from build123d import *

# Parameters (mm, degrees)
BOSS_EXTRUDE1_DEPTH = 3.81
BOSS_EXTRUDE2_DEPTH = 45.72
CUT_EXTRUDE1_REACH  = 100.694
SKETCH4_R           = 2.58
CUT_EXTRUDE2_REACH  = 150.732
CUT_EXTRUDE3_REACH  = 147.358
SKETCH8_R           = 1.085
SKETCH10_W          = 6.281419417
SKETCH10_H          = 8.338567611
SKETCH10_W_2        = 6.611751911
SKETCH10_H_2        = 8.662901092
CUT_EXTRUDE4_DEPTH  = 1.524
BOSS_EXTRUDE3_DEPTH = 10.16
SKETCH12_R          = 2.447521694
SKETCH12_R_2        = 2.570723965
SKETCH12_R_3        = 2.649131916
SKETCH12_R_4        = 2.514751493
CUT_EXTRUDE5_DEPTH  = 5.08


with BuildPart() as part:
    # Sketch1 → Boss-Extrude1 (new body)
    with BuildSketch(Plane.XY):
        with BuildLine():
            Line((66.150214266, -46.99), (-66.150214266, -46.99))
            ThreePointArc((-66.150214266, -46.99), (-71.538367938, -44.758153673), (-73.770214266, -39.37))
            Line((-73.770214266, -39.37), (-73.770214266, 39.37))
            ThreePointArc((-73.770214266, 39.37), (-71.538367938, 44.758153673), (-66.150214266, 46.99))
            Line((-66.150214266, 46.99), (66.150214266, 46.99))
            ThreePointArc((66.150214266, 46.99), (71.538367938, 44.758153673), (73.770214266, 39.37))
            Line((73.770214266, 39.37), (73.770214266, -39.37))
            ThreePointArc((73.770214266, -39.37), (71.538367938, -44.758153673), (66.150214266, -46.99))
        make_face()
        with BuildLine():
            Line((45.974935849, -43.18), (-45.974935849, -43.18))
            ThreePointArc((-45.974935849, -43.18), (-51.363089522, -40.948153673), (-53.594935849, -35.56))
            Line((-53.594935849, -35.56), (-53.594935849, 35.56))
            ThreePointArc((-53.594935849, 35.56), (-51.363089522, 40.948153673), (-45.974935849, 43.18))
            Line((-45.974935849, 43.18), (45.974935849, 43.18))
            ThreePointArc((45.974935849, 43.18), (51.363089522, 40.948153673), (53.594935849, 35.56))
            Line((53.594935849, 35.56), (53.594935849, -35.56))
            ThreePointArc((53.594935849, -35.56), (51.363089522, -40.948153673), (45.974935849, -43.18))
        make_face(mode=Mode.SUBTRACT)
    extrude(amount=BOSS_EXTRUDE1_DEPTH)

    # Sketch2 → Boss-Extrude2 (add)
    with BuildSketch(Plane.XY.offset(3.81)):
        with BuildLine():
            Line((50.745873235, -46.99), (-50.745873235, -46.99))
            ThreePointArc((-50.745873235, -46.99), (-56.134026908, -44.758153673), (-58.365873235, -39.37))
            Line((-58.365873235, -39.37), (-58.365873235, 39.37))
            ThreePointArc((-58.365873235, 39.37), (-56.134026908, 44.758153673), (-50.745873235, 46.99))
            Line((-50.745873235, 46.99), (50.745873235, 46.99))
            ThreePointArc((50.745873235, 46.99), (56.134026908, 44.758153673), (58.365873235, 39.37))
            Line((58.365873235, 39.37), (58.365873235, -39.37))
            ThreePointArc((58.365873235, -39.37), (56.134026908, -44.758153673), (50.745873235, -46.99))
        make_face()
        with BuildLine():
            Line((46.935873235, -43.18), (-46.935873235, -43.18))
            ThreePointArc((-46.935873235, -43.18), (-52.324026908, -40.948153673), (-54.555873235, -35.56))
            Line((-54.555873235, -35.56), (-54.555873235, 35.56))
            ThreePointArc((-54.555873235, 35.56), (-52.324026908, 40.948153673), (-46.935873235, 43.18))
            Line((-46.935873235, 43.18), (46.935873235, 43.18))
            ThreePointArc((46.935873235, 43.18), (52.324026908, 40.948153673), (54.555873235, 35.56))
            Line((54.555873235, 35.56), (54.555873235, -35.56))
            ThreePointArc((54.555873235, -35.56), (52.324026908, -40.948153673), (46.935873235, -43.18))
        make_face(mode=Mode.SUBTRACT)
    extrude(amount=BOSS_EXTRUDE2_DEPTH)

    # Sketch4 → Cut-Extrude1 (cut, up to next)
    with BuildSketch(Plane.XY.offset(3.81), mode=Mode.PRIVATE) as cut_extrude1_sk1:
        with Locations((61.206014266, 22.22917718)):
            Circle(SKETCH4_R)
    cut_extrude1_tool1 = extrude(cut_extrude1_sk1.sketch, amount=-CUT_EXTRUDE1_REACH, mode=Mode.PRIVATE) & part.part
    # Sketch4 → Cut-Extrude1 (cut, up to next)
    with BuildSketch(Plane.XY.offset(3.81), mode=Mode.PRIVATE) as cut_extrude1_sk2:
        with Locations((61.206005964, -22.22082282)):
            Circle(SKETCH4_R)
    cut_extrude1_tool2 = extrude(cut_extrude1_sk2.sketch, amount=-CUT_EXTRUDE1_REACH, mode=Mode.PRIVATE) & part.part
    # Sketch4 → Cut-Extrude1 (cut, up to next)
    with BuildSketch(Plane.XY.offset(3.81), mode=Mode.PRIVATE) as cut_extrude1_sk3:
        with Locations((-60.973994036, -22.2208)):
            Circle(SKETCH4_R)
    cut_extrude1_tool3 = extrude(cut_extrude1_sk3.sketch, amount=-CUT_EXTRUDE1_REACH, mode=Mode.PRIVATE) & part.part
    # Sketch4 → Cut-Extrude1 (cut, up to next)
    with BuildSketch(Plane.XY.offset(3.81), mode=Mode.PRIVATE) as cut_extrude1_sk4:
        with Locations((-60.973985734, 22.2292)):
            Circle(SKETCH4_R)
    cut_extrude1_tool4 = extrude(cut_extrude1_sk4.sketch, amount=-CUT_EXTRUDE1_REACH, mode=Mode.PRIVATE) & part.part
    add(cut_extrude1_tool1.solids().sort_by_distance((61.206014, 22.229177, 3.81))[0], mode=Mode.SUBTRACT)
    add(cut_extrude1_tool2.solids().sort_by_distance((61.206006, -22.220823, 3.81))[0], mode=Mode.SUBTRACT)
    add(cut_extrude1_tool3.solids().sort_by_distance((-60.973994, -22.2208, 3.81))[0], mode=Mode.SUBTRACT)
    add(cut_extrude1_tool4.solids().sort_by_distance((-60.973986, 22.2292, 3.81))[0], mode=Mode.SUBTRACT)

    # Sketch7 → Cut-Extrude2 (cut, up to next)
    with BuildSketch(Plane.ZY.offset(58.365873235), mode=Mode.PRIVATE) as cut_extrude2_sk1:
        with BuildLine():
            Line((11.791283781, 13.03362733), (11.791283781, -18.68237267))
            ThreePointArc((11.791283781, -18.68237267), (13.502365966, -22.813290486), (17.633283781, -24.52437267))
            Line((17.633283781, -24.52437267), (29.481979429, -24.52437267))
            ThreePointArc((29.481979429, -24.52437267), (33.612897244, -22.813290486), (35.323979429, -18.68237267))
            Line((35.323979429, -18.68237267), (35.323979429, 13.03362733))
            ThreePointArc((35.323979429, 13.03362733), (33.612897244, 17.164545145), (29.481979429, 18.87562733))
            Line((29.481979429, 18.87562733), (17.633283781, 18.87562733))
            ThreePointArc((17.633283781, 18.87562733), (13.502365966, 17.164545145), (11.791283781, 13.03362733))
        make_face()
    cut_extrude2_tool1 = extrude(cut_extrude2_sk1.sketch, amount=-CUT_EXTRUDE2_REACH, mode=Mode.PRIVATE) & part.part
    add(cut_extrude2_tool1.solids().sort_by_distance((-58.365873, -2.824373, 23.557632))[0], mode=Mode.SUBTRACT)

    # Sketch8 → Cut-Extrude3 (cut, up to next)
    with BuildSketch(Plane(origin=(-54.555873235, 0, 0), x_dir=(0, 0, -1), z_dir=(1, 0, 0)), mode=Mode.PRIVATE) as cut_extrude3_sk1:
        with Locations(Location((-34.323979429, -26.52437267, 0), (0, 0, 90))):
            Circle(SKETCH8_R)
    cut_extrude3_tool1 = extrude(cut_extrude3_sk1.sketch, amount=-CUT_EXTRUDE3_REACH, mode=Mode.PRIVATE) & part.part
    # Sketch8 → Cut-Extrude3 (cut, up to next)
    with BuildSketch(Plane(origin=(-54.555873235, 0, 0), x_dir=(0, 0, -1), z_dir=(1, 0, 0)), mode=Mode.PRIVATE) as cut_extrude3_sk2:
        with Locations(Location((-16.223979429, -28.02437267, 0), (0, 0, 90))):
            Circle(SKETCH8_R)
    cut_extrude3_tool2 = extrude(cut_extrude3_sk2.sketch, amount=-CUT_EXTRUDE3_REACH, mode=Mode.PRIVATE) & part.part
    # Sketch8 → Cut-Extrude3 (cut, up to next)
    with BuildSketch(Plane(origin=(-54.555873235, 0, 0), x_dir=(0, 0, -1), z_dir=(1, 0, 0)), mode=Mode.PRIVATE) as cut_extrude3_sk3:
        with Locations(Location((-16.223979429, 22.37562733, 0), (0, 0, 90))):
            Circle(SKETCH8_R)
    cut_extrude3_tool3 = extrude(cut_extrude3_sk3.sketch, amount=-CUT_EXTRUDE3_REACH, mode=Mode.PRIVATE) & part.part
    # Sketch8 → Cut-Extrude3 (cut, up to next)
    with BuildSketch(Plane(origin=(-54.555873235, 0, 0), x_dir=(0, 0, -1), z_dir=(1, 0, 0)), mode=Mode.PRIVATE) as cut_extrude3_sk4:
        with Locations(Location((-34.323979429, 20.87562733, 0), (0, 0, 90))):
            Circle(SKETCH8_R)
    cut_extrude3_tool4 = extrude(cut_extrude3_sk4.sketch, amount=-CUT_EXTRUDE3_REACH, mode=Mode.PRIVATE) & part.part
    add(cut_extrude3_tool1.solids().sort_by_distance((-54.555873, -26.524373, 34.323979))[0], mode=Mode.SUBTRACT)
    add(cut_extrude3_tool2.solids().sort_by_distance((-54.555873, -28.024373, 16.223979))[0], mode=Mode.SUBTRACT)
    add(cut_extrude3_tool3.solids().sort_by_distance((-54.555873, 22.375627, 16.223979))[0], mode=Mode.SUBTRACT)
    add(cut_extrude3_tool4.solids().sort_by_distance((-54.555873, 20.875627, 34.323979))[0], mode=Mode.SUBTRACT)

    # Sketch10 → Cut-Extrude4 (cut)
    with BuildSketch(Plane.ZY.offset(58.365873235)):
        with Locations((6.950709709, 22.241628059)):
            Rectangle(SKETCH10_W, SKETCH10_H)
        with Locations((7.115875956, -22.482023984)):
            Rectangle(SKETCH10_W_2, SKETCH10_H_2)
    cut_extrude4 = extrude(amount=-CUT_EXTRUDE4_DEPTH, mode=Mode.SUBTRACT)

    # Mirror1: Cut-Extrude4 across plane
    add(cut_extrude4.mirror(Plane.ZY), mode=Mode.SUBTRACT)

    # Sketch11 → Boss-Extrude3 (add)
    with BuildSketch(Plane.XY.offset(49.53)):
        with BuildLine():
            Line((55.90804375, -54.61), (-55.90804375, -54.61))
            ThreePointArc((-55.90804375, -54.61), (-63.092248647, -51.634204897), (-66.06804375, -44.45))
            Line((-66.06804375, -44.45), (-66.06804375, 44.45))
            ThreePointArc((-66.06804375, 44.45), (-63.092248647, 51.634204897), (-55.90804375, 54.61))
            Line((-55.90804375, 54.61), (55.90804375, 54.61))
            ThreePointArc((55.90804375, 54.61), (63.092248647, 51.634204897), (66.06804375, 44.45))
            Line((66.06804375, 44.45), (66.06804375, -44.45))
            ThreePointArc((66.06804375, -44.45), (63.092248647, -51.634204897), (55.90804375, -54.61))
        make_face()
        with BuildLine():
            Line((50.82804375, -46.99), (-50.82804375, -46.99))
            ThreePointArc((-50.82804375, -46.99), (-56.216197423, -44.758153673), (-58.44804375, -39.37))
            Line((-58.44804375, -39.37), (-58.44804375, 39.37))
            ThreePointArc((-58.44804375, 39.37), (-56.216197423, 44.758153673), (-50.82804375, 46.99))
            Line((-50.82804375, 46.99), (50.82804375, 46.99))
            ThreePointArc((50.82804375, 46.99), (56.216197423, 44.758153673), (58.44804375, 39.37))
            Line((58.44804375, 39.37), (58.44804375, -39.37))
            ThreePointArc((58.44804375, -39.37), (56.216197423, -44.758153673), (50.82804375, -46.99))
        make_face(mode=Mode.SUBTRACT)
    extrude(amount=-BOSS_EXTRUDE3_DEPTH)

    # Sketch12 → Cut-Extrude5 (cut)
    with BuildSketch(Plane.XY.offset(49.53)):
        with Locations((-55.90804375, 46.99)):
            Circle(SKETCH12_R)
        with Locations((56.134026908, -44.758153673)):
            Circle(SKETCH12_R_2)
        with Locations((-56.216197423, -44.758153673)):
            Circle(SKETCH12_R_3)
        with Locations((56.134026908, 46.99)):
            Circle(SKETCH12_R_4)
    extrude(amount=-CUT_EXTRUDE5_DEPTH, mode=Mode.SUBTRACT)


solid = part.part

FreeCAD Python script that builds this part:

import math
import FreeCAD as App
import Part
import Sketcher
from FreeCAD import Vector
Q = App.Units.Quantity


def add_polygon(sketch, points):
    """Adds a closed chain of lines whose ends are joined by coincident constraints."""
    first, n = sketch.GeometryCount, len(points)
    for a, b in zip(points, points[1:] + points[:1]):
        sketch.addGeometry(Part.LineSegment(App.Vector(*a, 0), App.Vector(*b, 0)), False)
    for i in range(n):
        sketch.addConstraint(Sketcher.Constraint("Coincident", first + i, 2, first + (i + 1) % n, 1))

doc = App.newDocument("Part")
params = doc.addObject("Spreadsheet::Sheet", "Params")
for row, (alias, value) in enumerate([
    ("sketch1_radius", "0.3 in"),
    ("sketch1_height", "3.1 in"),
    ("sketch1_height2", "2.8 in"),
    ("pad1_length", "0.15 in"),
    ("sketch2_radius", "0.3 in"),
    ("sketch2_height", "3.1 in"),
    ("sketch2_height2", "2.8 in"),
    ("pad2_length", "1.8 in"),
    ("sketch7_radius", "0.23 in"),
    ("pocket10_length", "0.06 in"),
    ("sketch13_radius", "0.4 in"),
    ("sketch13_radius2", "0.3 in"),
    ("sketch13_height", "3.5 in"),
    ("sketch13_height2", "3.1 in"),
    ("pad3_length", "0.4 in"),
    ("pocket11_length", "0.2 in"),
], start=1):
    params.set(f"A{row}", alias)
    params.set(f"B{row}", "=" + value)
    params.setAlias(f"B{row}", alias)

body = doc.addObject("PartDesign::Body", "Body")

# Sketch on XY plane
sketch1 = body.newObject("Sketcher::SketchObject", "Sketch")
sketch1.AttachmentSupport = (doc.getObject("XY_Plane"), [""])
sketch1.MapMode = "FlatFace"
sketch1.addGeometry([
    Part.LineSegment(Vector(-66, -47, 0), Vector(66, -47, 0)),  # 0
    Part.ArcOfCircle(Part.Circle(Vector(66, -39, 0), Vector(0, 0, 1), 8), math.radians(-90), math.radians(0)),  # 1
    Part.LineSegment(Vector(74, -39, 0), Vector(74, 39, 0)),  # 2
    Part.ArcOfCircle(Part.Circle(Vector(66, 39, 0), Vector(0, 0, 1), 8), math.radians(0), math.radians(90)),  # 3
    Part.LineSegment(Vector(66, 47, 0), Vector(-66, 47, 0)),  # 4
    Part.ArcOfCircle(Part.Circle(Vector(-66, 39, 0), Vector(0, 0, 1), 8), math.radians(90), math.radians(180)),  # 5
    Part.LineSegment(Vector(-74, 39, 0), Vector(-74, -39, 0)),  # 6
    Part.ArcOfCircle(Part.Circle(Vector(-66, -39, 0), Vector(0, 0, 1), 8), math.radians(180), math.radians(270)),  # 7
    Part.LineSegment(Vector(46, -43, 0), Vector(-46, -43, 0)),  # 8
    Part.ArcOfCircle(Part.Circle(Vector(-46, -36, 0), Vector(0, 0, 1), 8), math.radians(180), math.radians(270)),  # 9
    Part.LineSegment(Vector(-54, -36, 0), Vector(-54, 36, 0)),  # 10
    Part.ArcOfCircle(Part.Circle(Vector(-46, 36, 0), Vector(0, 0, 1), 8), math.radians(90), math.radians(180)),  # 11
    Part.LineSegment(Vector(-46, 43, 0), Vector(46, 43, 0)),  # 12
    Part.ArcOfCircle(Part.Circle(Vector(46, 36, 0), Vector(0, 0, 1), 8), math.radians(0), math.radians(90)),  # 13
    Part.LineSegment(Vector(54, 36, 0), Vector(54, -36, 0)),  # 14
    Part.ArcOfCircle(Part.Circle(Vector(46, -36, 0), Vector(0, 0, 1), 8), math.radians(-90), math.radians(0)),  # 15
], False)
sketch1.addConstraint([
    Sketcher.Constraint("Tangent", 0, 2, 1, 1),
    Sketcher.Constraint("Tangent", 1, 2, 2, 1),
    Sketcher.Constraint("Tangent", 2, 2, 3, 1),
    Sketcher.Constraint("Tangent", 3, 2, 4, 1),
    Sketcher.Constraint("Tangent", 4, 2, 5, 1),
    Sketcher.Constraint("Tangent", 5, 2, 6, 1),
    Sketcher.Constraint("Tangent", 6, 2, 7, 1),
    Sketcher.Constraint("Tangent", 7, 2, 0, 1),
    Sketcher.Constraint("Tangent", 8, 2, 9, 2),
    Sketcher.Constraint("Tangent", 9, 1, 10, 1),
    Sketcher.Constraint("Tangent", 10, 2, 11, 2),
    Sketcher.Constraint("Tangent", 11, 1, 12, 1),
    Sketcher.Constraint("Tangent", 12, 2, 13, 2),
    Sketcher.Constraint("Tangent", 13, 1, 14, 1),
    Sketcher.Constraint("Tangent", 14, 2, 15, 2),
    Sketcher.Constraint("Tangent", 15, 1, 8, 1),
    Sketcher.Constraint("Horizontal", 0),
    Sketcher.Constraint("Vertical", 2),
    Sketcher.Constraint("Horizontal", 4),
    Sketcher.Constraint("Vertical", 6),
    Sketcher.Constraint("Horizontal", 8),
    Sketcher.Constraint("Vertical", 10),
    Sketcher.Constraint("Horizontal", 12),
    Sketcher.Constraint("Vertical", 14),
    Sketcher.Constraint("Equal", 1, 3),
    Sketcher.Constraint("Equal", 3, 5),
    Sketcher.Constraint("Equal", 5, 7),
    Sketcher.Constraint("Equal", 7, 9),
    Sketcher.Constraint("Equal", 9, 11),
    Sketcher.Constraint("Equal", 11, 13),
    Sketcher.Constraint("Equal", 13, 15),
    Sketcher.Constraint("Symmetric", 1, 3, 5, 3, -1, 1),
    Sketcher.Constraint("Symmetric", 9, 3, 13, 3, -1, 1),
    Sketcher.Constraint("Radius", 1, Q("0.3 in")),
    Sketcher.Constraint("DistanceY", 2, 1, 2, 2, Q("3.1 in")),
    Sketcher.Constraint("DistanceY", 10, 1, 10, 2, Q("2.8 in")),
    Sketcher.Constraint("DistanceX", 0, 1, 0, 2, Q("132.300429 mm")),
    Sketcher.Constraint("DistanceX", 8, 2, 8, 1, Q("91.949872 mm")),
])
sketch1.setExpression("Constraints[33]", "Params.sketch1_radius")
sketch1.setExpression("Constraints[34]", "Params.sketch1_height")
sketch1.setExpression("Constraints[35]", "Params.sketch1_height2")
pad1 = body.newObject("PartDesign::Pad", "Pad")
pad1.Profile = sketch1
pad1.setExpression("Length", "Params.pad1_length")

# Sketch on XY plane
sketch2 = body.newObject("Sketcher::SketchObject", "Sketch001")
sketch2.AttachmentSupport = (doc.getObject("XY_Plane"), [""])
sketch2.MapMode = "FlatFace"
sketch2.AttachmentOffset = App.Placement(Vector(0, 0, 0.15 * 25.4), App.Rotation())
sketch2.addGeometry([
    Part.LineSegment(Vector(-51, -47, 0), Vector(51, -47, 0)),  # 0
    Part.ArcOfCircle(Part.Circle(Vector(51, -39, 0), Vector(0, 0, 1), 8), math.radians(-90), math.radians(0)),  # 1
    Part.LineSegment(Vector(58, -39, 0), Vector(58, 39, 0)),  # 2
    Part.ArcOfCircle(Part.Circle(Vector(51, 39, 0), Vector(0, 0, 1), 8), math.radians(0), math.radians(90)),  # 3
    Part.LineSegment(Vector(51, 47, 0), Vector(-51, 47, 0)),  # 4
    Part.ArcOfCircle(Part.Circle(Vector(-51, 39, 0), Vector(0, 0, 1), 8), math.radians(90), math.radians(180)),  # 5
    Part.LineSegment(Vector(-58, 39, 0), Vector(-58, -39, 0)),  # 6
    Part.ArcOfCircle(Part.Circle(Vector(-51, -39, 0), Vector(0, 0, 1), 8), math.radians(180), math.radians(270)),  # 7
    Part.LineSegment(Vector(47, -43, 0), Vector(-47, -43, 0)),  # 8
    Part.ArcOfCircle(Part.Circle(Vector(-47, -36, 0), Vector(0, 0, 1), 8), math.radians(180), math.radians(270)),  # 9
    Part.LineSegment(Vector(-55, -36, 0), Vector(-55, 36, 0)),  # 10
    Part.ArcOfCircle(Part.Circle(Vector(-47, 36, 0), Vector(0, 0, 1), 8), math.radians(90), math.radians(180)),  # 11
    Part.LineSegment(Vector(-47, 43, 0), Vector(47, 43, 0)),  # 12
    Part.ArcOfCircle(Part.Circle(Vector(47, 36, 0), Vector(0, 0, 1), 8), math.radians(0), math.radians(90)),  # 13
    Part.LineSegment(Vector(55, 36, 0), Vector(55, -36, 0)),  # 14
    Part.ArcOfCircle(Part.Circle(Vector(47, -36, 0), Vector(0, 0, 1), 8), math.radians(-90), math.radians(0)),  # 15
], False)
sketch2.addConstraint([
    Sketcher.Constraint("Tangent", 0, 2, 1, 1),
    Sketcher.Constraint("Tangent", 1, 2, 2, 1),
    Sketcher.Constraint("Tangent", 2, 2, 3, 1),
    Sketcher.Constraint("Tangent", 3, 2, 4, 1),
    Sketcher.Constraint("Tangent", 4, 2, 5, 1),
    Sketcher.Constraint("Tangent", 5, 2, 6, 1),
    Sketcher.Constraint("Tangent", 6, 2, 7, 1),
    Sketcher.Constraint("Tangent", 7, 2, 0, 1),
    Sketcher.Constraint("Tangent", 8, 2, 9, 2),
    Sketcher.Constraint("Tangent", 9, 1, 10, 1),
    Sketcher.Constraint("Tangent", 10, 2, 11, 2),
    Sketcher.Constraint("Tangent", 11, 1, 12, 1),
    Sketcher.Constraint("Tangent", 12, 2, 13, 2),
    Sketcher.Constraint("Tangent", 13, 1, 14, 1),
    Sketcher.Constraint("Tangent", 14, 2, 15, 2),
    Sketcher.Constraint("Tangent", 15, 1, 8, 1),
    Sketcher.Constraint("Horizontal", 0),
    Sketcher.Constraint("Vertical", 2),
    Sketcher.Constraint("Horizontal", 4),
    Sketcher.Constraint("Vertical", 6),
    Sketcher.Constraint("Horizontal", 8),
    Sketcher.Constraint("Vertical", 10),
    Sketcher.Constraint("Horizontal", 12),
    Sketcher.Constraint("Vertical", 14),
    Sketcher.Constraint("Equal", 1, 3),
    Sketcher.Constraint("Equal", 3, 5),
    Sketcher.Constraint("Equal", 5, 7),
    Sketcher.Constraint("Equal", 7, 9),
    Sketcher.Constraint("Equal", 9, 11),
    Sketcher.Constraint("Equal", 11, 13),
    Sketcher.Constraint("Equal", 13, 15),
    Sketcher.Constraint("Symmetric", 1, 3, 5, 3, -1, 1),
    Sketcher.Constraint("Symmetric", 9, 3, 13, 3, -1, 1),
    Sketcher.Constraint("Radius", 1, Q("0.3 in")),
    Sketcher.Constraint("DistanceY", 2, 1, 2, 2, Q("3.1 in")),
    Sketcher.Constraint("DistanceY", 10, 1, 10, 2, Q("2.8 in")),
    Sketcher.Constraint("DistanceX", 7, 3, 9, 3, Q("0.15 in")),
    Sketcher.Constraint("DistanceX", 0, 1, 0, 2, Q("101.491746 mm")),
])
sketch2.setExpression("Constraints[33]", "Params.sketch2_radius")
sketch2.setExpression("Constraints[34]", "Params.sketch2_height")
sketch2.setExpression("Constraints[35]", "Params.sketch2_height2")
pad2 = body.newObject("PartDesign::Pad", "Pad001")
pad2.Profile = sketch2
pad2.setExpression("Length", "Params.pad2_length")

# Sketch on XY plane
sketch3 = body.newObject("Sketcher::SketchObject", "Sketch002")
sketch3.AttachmentSupport = (doc.getObject("XY_Plane"), [""])
sketch3.MapMode = "FlatFace"
sketch3.AttachmentOffset = App.Placement(Vector(0, 0, 0.15 * 25.4), App.Rotation())
sketch3.addGeometry(Part.Circle(Vector(61.2, 22.2, 0), Vector(0, 0, 1), 2.6), False)
sketch3.addConstraint([
    Sketcher.Constraint("Diameter", 0, Q("5.16 mm")),
    Sketcher.Constraint("DistanceX", -1, 1, 0, 3, Q("61.206014 mm")),
    Sketcher.Constraint("DistanceY", -1, 1, 0, 3, Q("22.229177 mm")),
])
pocket1 = body.newObject("PartDesign::Pocket", "Pocket")
pocket1.Profile = sketch3
pocket1.Type = "UpToFirst"

# Sketch on XY plane
sketch4 = body.newObject("Sketcher::SketchObject", "Sketch003")
sketch4.AttachmentSupport = (doc.getObject("XY_Plane"), [""])
sketch4.MapMode = "FlatFace"
sketch4.AttachmentOffset = App.Placement(Vector(0, 0, 0.15 * 25.4), App.Rotation())
sketch4.addGeometry(Part.Circle(Vector(61.2, -22.2, 0), Vector(0, 0, 1), 2.6), False)
sketch4.addConstraint([
    Sketcher.Constraint("Diameter", 0, Q("5.16 mm")),
    Sketcher.Constraint("DistanceX", -1, 1, 0, 3, Q("61.206006 mm")),
    Sketcher.Constraint("DistanceY", 0, 3, -1, 1, Q("22.220823 mm")),
])
pocket2 = body.newObject("PartDesign::Pocket", "Pocket001")
pocket2.Profile = sketch4
pocket2.Type = "UpToFirst"

# Sketch on XY plane
sketch5 = body.newObject("Sketcher::SketchObject", "Sketch004")
sketch5.AttachmentSupport = (doc.getObject("XY_Plane"), [""])
sketch5.MapMode = "FlatFace"
sketch5.AttachmentOffset = App.Placement(Vector(0, 0, 0.15 * 25.4), App.Rotation())
sketch5.addGeometry(Part.Circle(Vector(-61, -22.2, 0), Vector(0, 0, 1), 2.6), False)
sketch5.addConstraint([
    Sketcher.Constraint("Diameter", 0, Q("5.16 mm")),
    Sketcher.Constraint("DistanceY", 0, 3, -1, 1, Q("22.2208 mm")),
    Sketcher.Constraint("DistanceX", 0, 3, -1, 1, Q("60.973994 mm")),
])
pocket3 = body.newObject("PartDesign::Pocket", "Pocket002")
pocket3.Profile = sketch5
pocket3.Type = "UpToFirst"

# Sketch on XY plane
sketch6 = body.newObject("Sketcher::SketchObject", "Sketch005")
sketch6.AttachmentSupport = (doc.getObject("XY_Plane"), [""])
sketch6.MapMode = "FlatFace"
sketch6.AttachmentOffset = App.Placement(Vector(0, 0, 0.15 * 25.4), App.Rotation())
sketch6.addGeometry(Part.Circle(Vector(-61, 22.2, 0), Vector(0, 0, 1), 2.6), False)
sketch6.addConstraint([
    Sketcher.Constraint("Diameter", 0, Q("5.16 mm")),
    Sketcher.Constraint("DistanceY", -1, 1, 0, 3, Q("22.2292 mm")),
    Sketcher.Constraint("DistanceX", 0, 3, -1, 1, Q("60.973986 mm")),
])
pocket4 = body.newObject("PartDesign::Pocket", "Pocket003")
pocket4.Profile = sketch6
pocket4.Type = "UpToFirst"

# Sketch on YZ plane
sketch7 = body.newObject("Sketcher::SketchObject", "Sketch006")
sketch7.AttachmentSupport = (doc.getObject("YZ_Plane"), [""])
sketch7.MapMode = "FlatFace"
sketch7.AttachmentOffset = App.Placement(Vector(0, 0, -58.365873), App.Rotation())
sketch7.addGeometry([
    Part.LineSegment(Vector(13, 12, 0), Vector(-19, 12, 0)),  # 0
    Part.ArcOfCircle(Part.Circle(Vector(-19, 18, 0), Vector(0, 0, 1), 6), math.radians(-180), math.radians(-90)),  # 1
    Part.LineSegment(Vector(-25, 18, 0), Vector(-25, 29, 0)),  # 2
    Part.ArcOfCircle(Part.Circle(Vector(-19, 29, 0), Vector(0, 0, 1), 6), math.radians(90), math.radians(180)),  # 3
    Part.LineSegment(Vector(-19, 35, 0), Vector(13, 35, 0)),  # 4
    Part.ArcOfCircle(Part.Circle(Vector(13, 29, 0), Vector(0, 0, 1), 6), math.radians(0), math.radians(90)),  # 5
    Part.LineSegment(Vector(19, 29, 0), Vector(19, 18, 0)),  # 6
    Part.ArcOfCircle(Part.Circle(Vector(13, 18, 0), Vector(0, 0, 1), 6), math.radians(-90), math.radians(0)),  # 7
], False)
sketch7.addConstraint([
    Sketcher.Constraint("Tangent", 0, 2, 1, 2),
    Sketcher.Constraint("Tangent", 1, 1, 2, 1),
    Sketcher.Constraint("Tangent", 2, 2, 3, 2),
    Sketcher.Constraint("Tangent", 3, 1, 4, 1),
    Sketcher.Constraint("Tangent", 4, 2, 5, 2),
    Sketcher.Constraint("Tangent", 5, 1, 6, 1),
    Sketcher.Constraint("Tangent", 6, 2, 7, 2),
    Sketcher.Constraint("Tangent", 7, 1, 0, 1),
    Sketcher.Constraint("Horizontal", 0),
    Sketcher.Constraint("Vertical", 2),
    Sketcher.Constraint("Horizontal", 4),
    Sketcher.Constraint("Vertical", 6),
    Sketcher.Constraint("Equal", 1, 3),
    Sketcher.Constraint("Equal", 3, 5),
    Sketcher.Constraint("Equal", 5, 7),
    Sketcher.Constraint("Radius", 1, Q("0.23 in")),
    Sketcher.Constraint("DistanceX", 0, 2, 0, 1, Q("31.716 mm")),
    Sketcher.Constraint("DistanceY", 2, 1, 2, 2, Q("11.848696 mm")),
    Sketcher.Constraint("DistanceY", -1, 1, 3, 3, Q("29.481979 mm")),
    Sketcher.Constraint("DistanceX", 1, 3, -1, 1, Q("18.682373 mm")),
])
sketch7.setExpression("Constraints[15]", "Params.sketch7_radius")
pocket5 = body.newObject("PartDesign::Pocket", "Pocket004")
pocket5.Profile = sketch7
pocket5.Type = "UpToFirst"
pocket5.Reversed = True

# Sketch on YZ plane
sketch8 = body.newObject("Sketcher::SketchObject", "Sketch007")
sketch8.AttachmentSupport = (doc.getObject("YZ_Plane"), [""])
sketch8.MapMode = "FlatFace"
sketch8.AttachmentOffset = App.Placement(Vector(0, 0, -54.555873), App.Rotation())
sketch8.addGeometry(Part.Circle(Vector(-26.5, 34.3, 0), Vector(0, 0, 1), 1.1), False)
sketch8.addConstraint([
    Sketcher.Constraint("Diameter", 0, Q("2.17 mm")),
    Sketcher.Constraint("DistanceY", -1, 1, 0, 3, Q("34.323979 mm")),
    Sketcher.Constraint("DistanceX", 0, 3, -1, 1, Q("26.524373 mm")),
])
pocket6 = body.newObject("PartDesign::Pocket", "Pocket005")
pocket6.Profile = sketch8
pocket6.Type = "UpToFirst"

# Sketch on YZ plane
sketch9 = body.newObject("Sketcher::SketchObject", "Sketch008")
sketch9.AttachmentSupport = (doc.getObject("YZ_Plane"), [""])
sketch9.MapMode = "FlatFace"
sketch9.AttachmentOffset = App.Placement(Vector(0, 0, -54.555873), App.Rotation())
sketch9.addGeometry(Part.Circle(Vector(-28, 16.2, 0), Vector(0, 0, 1), 1.1), False)
sketch9.addConstraint([
    Sketcher.Constraint("Diameter", 0, Q("2.17 mm")),
    Sketcher.Constraint("DistanceY", -1, 1, 0, 3, Q("16.223979 mm")),
    Sketcher.Constraint("DistanceX", 0, 3, -1, 1, Q("28.024373 mm")),
])
pocket7 = body.newObject("PartDesign::Pocket", "Pocket006")
pocket7.Profile = sketch9
pocket7.Type = "UpToFirst"

# Sketch on YZ plane
sketch10 = body.newObject("Sketcher::SketchObject", "Sketch009")
sketch10.AttachmentSupport = (doc.getObject("YZ_Plane"), [""])
sketch10.MapMode = "FlatFace"
sketch10.AttachmentOffset = App.Placement(Vector(0, 0, -54.555873), App.Rotation())
sketch10.addGeometry(Part.Circle(Vector(22.4, 16.2, 0), Vector(0, 0, 1), 1.1), False)
sketch10.addConstraint([
    Sketcher.Constraint("Diameter", 0, Q("2.17 mm")),
    Sketcher.Constraint("DistanceY", -1, 1, 0, 3, Q("16.223979 mm")),
    Sketcher.Constraint("DistanceX", -1, 1, 0, 3, Q("22.375627 mm")),
])
pocket8 = body.newObject("PartDesign::Pocket", "Pocket007")
pocket8.Profile = sketch10
pocket8.Type = "UpToFirst"

# Sketch on YZ plane
sketch11 = body.newObject("Sketcher::SketchObject", "Sketch010")
sketch11.AttachmentSupport = (doc.getObject("YZ_Plane"), [""])
sketch11.MapMode = "FlatFace"
sketch11.AttachmentOffset = App.Placement(Vector(0, 0, -54.555873), App.Rotation())
sketch11.addGeometry(Part.Circle(Vector(20.9, 34.3, 0), Vector(0, 0, 1), 1.1), False)
sketch11.addConstraint([
    Sketcher.Constraint("Diameter", 0, Q("2.17 mm")),
    Sketcher.Constraint("DistanceY", -1, 1, 0, 3, Q("34.323979 mm")),
    Sketcher.Constraint("DistanceX", -1, 1, 0, 3, Q("20.875627 mm")),
])
pocket9 = body.newObject("PartDesign::Pocket", "Pocket008")
pocket9.Profile = sketch11
pocket9.Type = "UpToFirst"

# Sketch on YZ plane
sketch12 = body.newObject("Sketcher::SketchObject", "Sketch011")
sketch12.AttachmentSupport = (doc.getObject("YZ_Plane"), [""])
sketch12.MapMode = "FlatFace"
sketch12.AttachmentOffset = App.Placement(Vector(0, 0, -58.365873), App.Rotation())
add_polygon(sketch12, [(26, 4), (18, 4), (18, 10), (26, 10)])  # lines 0-3
add_polygon(sketch12, [(-18, 4), (-27, 4), (-27, 10), (-18, 10)])  # lines 4-7
sketch12.addConstraint([
    Sketcher.Constraint("Horizontal", 0),
    Sketcher.Constraint("Vertical", 1),
    Sketcher.Constraint("Horizontal", 2),
    Sketcher.Constraint("Vertical", 3),
    Sketcher.Constraint("Horizontal", 4),
    Sketcher.Constraint("Vertical", 5),
    Sketcher.Constraint("Horizontal", 6),
    Sketcher.Constraint("Vertical", 7),
    Sketcher.Constraint("Horizontal", 3, 2, 4, 2),
    Sketcher.Constraint("DistanceY", -1, 1, 0, 2, Q("0.15 in")),
    Sketcher.Constraint("DistanceY", 1, 1, 1, 2, Q("0.2473 in")),
    Sketcher.Constraint("DistanceX", 4, 2, 4, 1, Q("8.662901 mm")),
    Sketcher.Constraint("DistanceY", 5, 1, 5, 2, Q("6.611752 mm")),
    Sketcher.Constraint("DistanceX", 0, 2, 0, 1, Q("8.338568 mm")),
    Sketcher.Constraint("DistanceX", -1, 1, 2, 2, Q("26.410912 mm")),
    Sketcher.Constraint("DistanceX", 4, 2, 0, 2, Q("44.885819 mm")),
])
pocket10 = body.newObject("PartDesign::Pocket", "Pocket009")
pocket10.Profile = sketch12
pocket10.setExpression("Length", "Params.pocket10_length")
pocket10.Reversed = True
doc.recompute()

mirrored = body.newObject("PartDesign::Mirrored", "Mirrored")
mirrored.Originals = [pocket10]
mirrored.MirrorPlane = (doc.getObject("YZ_Plane"), [""])
body.Tip = mirrored

# Sketch on XY plane
sketch13 = body.newObject("Sketcher::SketchObject", "Sketch012")
sketch13.AttachmentSupport = (doc.getObject("XY_Plane"), [""])
sketch13.MapMode = "FlatFace"
sketch13.AttachmentOffset = App.Placement(Vector(0, 0, 1.95 * 25.4), App.Rotation())
sketch13.addGeometry([
    Part.LineSegment(Vector(-56, -55, 0), Vector(56, -55, 0)),  # 0
    Part.ArcOfCircle(Part.Circle(Vector(56, -44, 0), Vector(0, 0, 1), 10), math.radians(-90), math.radians(0)),  # 1
    Part.LineSegment(Vector(66, -44, 0), Vector(66, 44, 0)),  # 2
    Part.ArcOfCircle(Part.Circle(Vector(56, 44, 0), Vector(0, 0, 1), 10), math.radians(0), math.radians(90)),  # 3
    Part.LineSegment(Vector(56, 55, 0), Vector(-56, 55, 0)),  # 4
    Part.ArcOfCircle(Part.Circle(Vector(-56, 44, 0), Vector(0, 0, 1), 10), math.radians(90), math.radians(180)),  # 5
    Part.LineSegment(Vector(-66, 44, 0), Vector(-66, -44, 0)),  # 6
    Part.ArcOfCircle(Part.Circle(Vector(-56, -44, 0), Vector(0, 0, 1), 10), math.radians(180), math.radians(270)),  # 7
    Part.LineSegment(Vector(51, -47, 0), Vector(-51, -47, 0)),  # 8
    Part.ArcOfCircle(Part.Circle(Vector(-51, -39, 0), Vector(0, 0, 1), 8), math.radians(180), math.radians(270)),  # 9
    Part.LineSegment(Vector(-58, -39, 0), Vector(-58, 39, 0)),  # 10
    Part.ArcOfCircle(Part.Circle(Vector(-51, 39, 0), Vector(0, 0, 1), 8), math.radians(90), math.radians(180)),  # 11
    Part.LineSegment(Vector(-51, 47, 0), Vector(51, 47, 0)),  # 12
    Part.ArcOfCircle(Part.Circle(Vector(51, 39, 0), Vector(0, 0, 1), 8), math.radians(0), math.radians(90)),  # 13
    Part.LineSegment(Vector(58, 39, 0), Vector(58, -39, 0)),  # 14
    Part.ArcOfCircle(Part.Circle(Vector(51, -39, 0), Vector(0, 0, 1), 8), math.radians(-90), math.radians(0)),  # 15
], False)
sketch13.addConstraint([
    Sketcher.Constraint("Tangent", 0, 2, 1, 1),
    Sketcher.Constraint("Tangent", 1, 2, 2, 1),
    Sketcher.Constraint("Tangent", 2, 2, 3, 1),
    Sketcher.Constraint("Tangent", 3, 2, 4, 1),
    Sketcher.Constraint("Tangent", 4, 2, 5, 1),
    Sketcher.Constraint("Tangent", 5, 2, 6, 1),
    Sketcher.Constraint("Tangent", 6, 2, 7, 1),
    Sketcher.Constraint("Tangent", 7, 2, 0, 1),
    Sketcher.Constraint("Tangent", 8, 2, 9, 2),
    Sketcher.Constraint("Tangent", 9, 1, 10, 1),
    Sketcher.Constraint("Tangent", 10, 2, 11, 2),
    Sketcher.Constraint("Tangent", 11, 1, 12, 1),
    Sketcher.Constraint("Tangent", 12, 2, 13, 2),
    Sketcher.Constraint("Tangent", 13, 1, 14, 1),
    Sketcher.Constraint("Tangent", 14, 2, 15, 2),
    Sketcher.Constraint("Tangent", 15, 1, 8, 1),
    Sketcher.Constraint("Horizontal", 0),
    Sketcher.Constraint("Vertical", 2),
    Sketcher.Constraint("Horizontal", 4),
    Sketcher.Constraint("Vertical", 6),
    Sketcher.Constraint("Horizontal", 8),
    Sketcher.Constraint("Vertical", 10),
    Sketcher.Constraint("Horizontal", 12),
    Sketcher.Constraint("Vertical", 14),
    Sketcher.Constraint("Equal", 1, 3),
    Sketcher.Constraint("Equal", 3, 5),
    Sketcher.Constraint("Equal", 5, 7),
    Sketcher.Constraint("Equal", 9, 11),
    Sketcher.Constraint("Equal", 11, 13),
    Sketcher.Constraint("Equal", 13, 15),
    Sketcher.Constraint("Symmetric", 1, 3, 5, 3, -1, 1),
    Sketcher.Constraint("Symmetric", 9, 3, 13, 3, -1, 1),
    Sketcher.Constraint("Radius", 1, Q("0.4 in")),
    Sketcher.Constraint("Radius", 9, Q("0.3 in")),
    Sketcher.Constraint("DistanceY", 2, 1, 2, 2, Q("3.5 in")),
    Sketcher.Constraint("DistanceY", 10, 1, 10, 2, Q("3.1 in")),
    Sketcher.Constraint("DistanceX", 7, 3, 9, 3, Q("0.2 in")),
    Sketcher.Constraint("DistanceX", 0, 1, 0, 2, Q("111.816087 mm")),
])
sketch13.setExpression("Constraints[32]", "Params.sketch13_radius")
sketch13.setExpression("Constraints[33]", "Params.sketch13_radius2")
sketch13.setExpression("Constraints[34]", "Params.sketch13_height")
sketch13.setExpression("Constraints[35]", "Params.sketch13_height2")
pad3 = body.newObject("PartDesign::Pad", "Pad002")
pad3.Profile = sketch13
pad3.setExpression("Length", "Params.pad3_length")
pad3.Reversed = True

# Sketch on XY plane
sketch14 = body.newObject("Sketcher::SketchObject", "Sketch013")
sketch14.AttachmentSupport = (doc.getObject("XY_Plane"), [""])
sketch14.MapMode = "FlatFace"
sketch14.AttachmentOffset = App.Placement(Vector(0, 0, 1.95 * 25.4), App.Rotation())
sketch14.addGeometry([
    Part.Circle(Vector(-55.9, 47, 0), Vector(0, 0, 1), 2.4),
    Part.Circle(Vector(56.1, -44.8, 0), Vector(0, 0, 1), 2.6),
    Part.Circle(Vector(-56.2, -44.8, 0), Vector(0, 0, 1), 2.6),
    Part.Circle(Vector(56.1, 47, 0), Vector(0, 0, 1), 2.5),
], False)
sketch14.addConstraint([
    Sketcher.Constraint("Horizontal", 1, 3, 2, 3),
    Sketcher.Constraint("Horizontal", 0, 3, 3, 3),
    Sketcher.Constraint("Vertical", 1, 3, 3, 3),
    Sketcher.Constraint("DistanceY", -1, 1, 0, 3, Q("1.85 in")),
    Sketcher.Constraint("Diameter", 0, Q("4.895043 mm")),
    Sketcher.Constraint("Diameter", 1, Q("5.141448 mm")),
    Sketcher.Constraint("Diameter", 2, Q("5.298264 mm")),
    Sketcher.Constraint("Diameter", 3, Q("5.029503 mm")),
    Sketcher.Constraint("DistanceX", 0, 3, 1, 3, Q("112.042071 mm")),
    Sketcher.Constraint("DistanceX", 0, 3, -1, 1, Q("55.908044 mm")),
    Sketcher.Constraint("DistanceY", 1, 3, -1, 1, Q("44.758154 mm")),
    Sketcher.Constraint("DistanceX", 2, 3, -1, 1, Q("56.216197 mm")),
])
pocket11 = body.newObject("PartDesign::Pocket", "Pocket010")
pocket11.Profile = sketch14
pocket11.setExpression("Length", "Params.pocket11_length")

doc.recompute()
